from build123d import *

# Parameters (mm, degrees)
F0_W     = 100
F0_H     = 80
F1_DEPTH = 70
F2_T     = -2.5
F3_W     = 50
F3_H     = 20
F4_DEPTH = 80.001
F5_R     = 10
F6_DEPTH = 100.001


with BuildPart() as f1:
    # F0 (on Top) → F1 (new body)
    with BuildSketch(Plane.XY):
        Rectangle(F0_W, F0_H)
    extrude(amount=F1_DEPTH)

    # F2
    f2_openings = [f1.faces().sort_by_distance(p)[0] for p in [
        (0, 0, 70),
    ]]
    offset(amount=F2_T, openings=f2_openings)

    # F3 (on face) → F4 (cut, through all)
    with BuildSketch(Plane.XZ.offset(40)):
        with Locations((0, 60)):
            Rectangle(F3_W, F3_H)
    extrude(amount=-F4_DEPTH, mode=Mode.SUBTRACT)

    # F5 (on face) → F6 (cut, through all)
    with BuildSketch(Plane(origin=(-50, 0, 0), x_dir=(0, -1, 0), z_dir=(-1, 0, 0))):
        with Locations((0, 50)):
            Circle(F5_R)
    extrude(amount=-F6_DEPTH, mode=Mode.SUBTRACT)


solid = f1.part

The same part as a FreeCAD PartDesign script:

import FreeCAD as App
import Part
import Sketcher

V = App.Vector
Q = App.Units.Quantity


def faces_at(feature, points):
    """Names of the faces that lie closest to the given points."""
    faces = feature.Shape.Faces
    near = lambda p: min(range(len(faces)), key=lambda i: faces[i].distToShape(Part.Vertex(*p))[0])
    return sorted({f"Face{near(p) + 1}" for p in points})

doc = App.newDocument("Part")
body = doc.addObject("PartDesign::Body", "Body")

# Sketch on XY plane
sketch1 = body.newObject("Sketcher::SketchObject", "Sketch")
sketch1.AttachmentSupport = (doc.getObject("XY_Plane"), [""])
sketch1.MapMode = "FlatFace"
sketch1.addGeometry(Part.LineSegment(V(-50, 40, 0), V(-50, -40, 0)), False)
sketch1.addGeometry(Part.LineSegment(V(-50, -40, 0), V(50, -40, 0)), False)
sketch1.addGeometry(Part.LineSegment(V(50, -40, 0), V(50, 40, 0)), False)
sketch1.addGeometry(Part.LineSegment(V(50, 40, 0), V(-50, 40, 0)), False)
sketch1.addConstraint(Sketcher.Constraint("Coincident", 0, 2, 1, 1))
sketch1.addConstraint(Sketcher.Constraint("Coincident", 1, 2, 2, 1))
sketch1.addConstraint(Sketcher.Constraint("Coincident", 2, 2, 3, 1))
sketch1.addConstraint(Sketcher.Constraint("Coincident", 3, 2, 0, 1))
sketch1.addConstraint(Sketcher.Constraint("Vertical", 0))
sketch1.addConstraint(Sketcher.Constraint("Horizontal", 1))
sketch1.addConstraint(Sketcher.Constraint("Vertical", 2))
sketch1.addConstraint(Sketcher.Constraint("Horizontal", 3))
sketch1.addConstraint(Sketcher.Constraint("Symmetric", 0, 2, 2, 2, -1, 1))
sketch1.addConstraint(Sketcher.Constraint("DistanceX", 1, 1, 1, 2, Q("100 mm")))
sketch1.addConstraint(Sketcher.Constraint("DistanceY", 0, 2, 0, 1, Q("80 mm")))
pad1 = body.newObject("PartDesign::Pad", "Pad")
pad1.Profile = sketch1
pad1.Length = 70
doc.recompute()

thickness = body.newObject("PartDesign::Thickness", "Thickness")
thickness.Base = (pad1, faces_at(pad1, [(0, 0, 70)]))
thickness.Value = 2.5
thickness.Reversed = True
thickness.Join = "Arc"

# Sketch on XZ plane
sketch2 = body.newObject("Sketcher::SketchObject", "Sketch001")
sketch2.AttachmentSupport = (doc.getObject("XZ_Plane"), [""])
sketch2.MapMode = "FlatFace"
sketch2.AttachmentOffset = App.Placement(V(0, 0, 40), App.Rotation())
sketch2.addGeometry(Part.LineSegment(V(-25, 70, 0), V(-25, 50, 0)), False)
sketch2.addGeometry(Part.LineSegment(V(-25, 50, 0), V(25, 50, 0)), False)
sketch2.addGeometry(Part.LineSegment(V(25, 50, 0), V(25, 70, 0)), False)
sketch2.addGeometry(Part.LineSegment(V(25, 70, 0), V(-25, 70, 0)), False)
sketch2.addConstraint(Sketcher.Constraint("Coincident", 0, 2, 1, 1))
sketch2.addConstraint(Sketcher.Constraint("Coincident", 1, 2, 2, 1))
sketch2.addConstraint(Sketcher.Constraint("Coincident", 2, 2, 3, 1))
sketch2.addConstraint(Sketcher.Constraint("Coincident", 3, 2, 0, 1))
sketch2.addConstraint(Sketcher.Constraint("Vertical", 0))
sketch2.addConstraint(Sketcher.Constraint("Horizontal", 1))
sketch2.addConstraint(Sketcher.Constraint("Vertical", 2))
sketch2.addConstraint(Sketcher.Constraint("Horizontal", 3))
sketch2.addConstraint(Sketcher.Constraint("DistanceX", 1, 1, 1, 2, Q("50 mm")))
sketch2.addConstraint(Sketcher.Constraint("DistanceY", 0, 2, 0, 1, Q("20 mm")))
sketch2.addConstraint(Sketcher.Constraint("DistanceX", 0, 2, -1, 1, Q("25 mm")))
sketch2.addConstraint(Sketcher.Constraint("DistanceY", -1, 1, 0, 2, Q("50 mm")))
pocket1 = body.newObject("PartDesign::Pocket", "Pocket")
pocket1.Profile = sketch2
pocket1.Type = "ThroughAll"

# Sketch on YZ plane
sketch3 = body.newObject("Sketcher::SketchObject", "Sketch002")
sketch3.AttachmentSupport = (doc.getObject("YZ_Plane"), [""])
sketch3.MapMode = "FlatFace"
sketch3.AttachmentOffset = App.Placement(V(0, 0, -50), App.Rotation())
sketch3.addGeometry(Part.Circle(V(0, 50, 0), V(0, 0, 1), 10), False)
sketch3.addConstraint(Sketcher.Constraint("PointOnObject", 0, 3, -2))
sketch3.addConstraint(Sketcher.Constraint("Diameter", 0, Q("20 mm")))
sketch3.addConstraint(Sketcher.Constraint("DistanceY", -1, 1, 0, 3, Q("50 mm")))
pocket2 = body.newObject("PartDesign::Pocket", "Pocket001")
pocket2.Profile = sketch3
pocket2.Type = "ThroughAll"
pocket2.Reversed = True

doc.recompute()
